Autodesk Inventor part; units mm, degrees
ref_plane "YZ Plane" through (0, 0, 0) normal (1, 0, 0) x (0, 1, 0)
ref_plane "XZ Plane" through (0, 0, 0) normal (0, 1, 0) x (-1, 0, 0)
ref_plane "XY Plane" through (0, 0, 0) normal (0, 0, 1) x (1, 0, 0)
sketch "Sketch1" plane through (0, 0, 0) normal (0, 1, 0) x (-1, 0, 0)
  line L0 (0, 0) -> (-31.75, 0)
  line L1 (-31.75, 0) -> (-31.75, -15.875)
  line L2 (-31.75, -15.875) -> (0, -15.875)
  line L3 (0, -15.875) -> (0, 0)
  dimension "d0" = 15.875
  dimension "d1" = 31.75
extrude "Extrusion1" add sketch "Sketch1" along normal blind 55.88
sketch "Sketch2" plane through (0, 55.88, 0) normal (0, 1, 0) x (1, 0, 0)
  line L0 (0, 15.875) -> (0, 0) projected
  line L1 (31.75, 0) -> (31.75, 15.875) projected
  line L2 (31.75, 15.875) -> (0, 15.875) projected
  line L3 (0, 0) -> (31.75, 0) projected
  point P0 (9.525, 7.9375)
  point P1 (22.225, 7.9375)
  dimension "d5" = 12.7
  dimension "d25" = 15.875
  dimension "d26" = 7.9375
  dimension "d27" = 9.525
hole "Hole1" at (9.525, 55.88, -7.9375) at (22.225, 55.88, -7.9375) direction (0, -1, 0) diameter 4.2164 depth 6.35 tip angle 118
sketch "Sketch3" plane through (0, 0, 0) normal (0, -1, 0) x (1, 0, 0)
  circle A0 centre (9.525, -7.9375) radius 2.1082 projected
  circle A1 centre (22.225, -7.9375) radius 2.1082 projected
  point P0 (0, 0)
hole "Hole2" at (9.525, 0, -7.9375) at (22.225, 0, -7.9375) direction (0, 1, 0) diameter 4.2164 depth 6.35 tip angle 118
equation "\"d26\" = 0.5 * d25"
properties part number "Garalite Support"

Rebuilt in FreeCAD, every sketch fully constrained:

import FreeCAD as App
import Part
import Sketcher
from FreeCAD import Vector
Q = App.Units.Quantity


def add_polygon(sketch, points):
    """Adds a closed chain of lines whose ends are joined by coincident constraints."""
    first, n = sketch.GeometryCount, len(points)
    for a, b in zip(points, points[1:] + points[:1]):
        sketch.addGeometry(Part.LineSegment(App.Vector(*a, 0), App.Vector(*b, 0)), False)
    for i in range(n):
        sketch.addConstraint(Sketcher.Constraint("Coincident", first + i, 2, first + (i + 1) % n, 1))

doc = App.newDocument("Part")
body = doc.addObject("PartDesign::Body", "Body")

# Sketch on XZ plane
sketch1 = body.newObject("Sketcher::SketchObject", "Sketch")
sketch1.AttachmentSupport = (doc.getObject("XZ_Plane"), [""])
sketch1.MapMode = "FlatFace"
add_polygon(sketch1, [(0, -16), (0, 0), (32, 0), (32, -16)])  # lines 0-3
sketch1.addConstraint([
    Sketcher.Constraint("Vertical", 0),
    Sketcher.Constraint("Horizontal", 1),
    Sketcher.Constraint("Vertical", 2),
    Sketcher.Constraint("Horizontal", 3),
    Sketcher.Constraint("Coincident", 0, 2, -1, 1),
    Sketcher.Constraint("DistanceX", 1, 1, 1, 2, Q("1.25 in")),
    Sketcher.Constraint("DistanceY", 0, 1, 0, 2, Q("0.625 in")),
])
pad1 = body.newObject("PartDesign::Pad", "Pad")
pad1.Profile = sketch1
pad1.Length = Q("2.2 in")
pad1.Reversed = True

# Sketch on XZ plane
sketch2 = body.newObject("Sketcher::SketchObject", "Sketch001")
sketch2.AttachmentSupport = (doc.getObject("XZ_Plane"), [""])
sketch2.MapMode = "FlatFace"
sketch2.AttachmentOffset = App.Placement(Vector(0, 0, -2.2 * 25.4), App.Rotation())
sketch2.addGeometry([
    Part.Circle(Vector(9.5, -7.9, 0), Vector(0, 0, 1), 2.1),
    Part.Circle(Vector(22.2, -7.9, 0), Vector(0, 0, 1), 2.1),
], False)
sketch2.addConstraint([
    Sketcher.Constraint("Equal", 0, 1),
    Sketcher.Constraint("Horizontal", 0, 3, 1, 3),
    Sketcher.Constraint("Diameter", 0, Q("0.166 in")),
    Sketcher.Constraint("DistanceX", 0, 3, 1, 3, Q("0.5 in")),
    Sketcher.Constraint("DistanceX", -1, 1, 0, 3, Q("0.375 in")),
    Sketcher.Constraint("DistanceY", 0, 3, -1, 1, Q("0.3125 in")),
])
doc.recompute()
hole = body.newObject("PartDesign::Hole", "Hole")
hole.Profile = sketch2
hole.ThreadType = "None"
hole.Diameter = Q("0.166 in")
hole.DepthType = "Dimension"
hole.Depth = Q("0.25 in")
hole.DrillPoint = "Angled"
hole.DrillPointAngle = 118
hole.Reversed = True

# Sketch on XZ plane
sketch3 = body.newObject("Sketcher::SketchObject", "Sketch002")
sketch3.AttachmentSupport = (doc.getObject("XZ_Plane"), [""])
sketch3.MapMode = "FlatFace"
sketch3.addGeometry([
    Part.Circle(Vector(9.5, -7.9, 0), Vector(0, 0, 1), 2.1),
    Part.Circle(Vector(22.2, -7.9, 0), Vector(0, 0, 1), 2.1),
], False)
sketch3.addConstraint([
    Sketcher.Constraint("Equal", 0, 1),
    Sketcher.Constraint("Horizontal", 0, 3, 1, 3),
    Sketcher.Constraint("Diameter", 0, Q("0.166 in")),
    Sketcher.Constraint("DistanceX", 0, 3, 1, 3, Q("0.5 in")),
    Sketcher.Constraint("DistanceX", -1, 1, 0, 3, Q("0.375 in")),
    Sketcher.Constraint("DistanceY", 0, 3, -1, 1, Q("0.3125 in")),
])
doc.recompute()
hole2 = body.newObject("PartDesign::Hole", "Hole001")
hole2.Profile = sketch3
hole2.ThreadType = "None"
hole2.Diameter = Q("0.166 in")
hole2.DepthType = "Dimension"
hole2.Depth = Q("0.25 in")
hole2.DrillPoint = "Angled"
hole2.DrillPointAngle = 118

doc.recompute()
